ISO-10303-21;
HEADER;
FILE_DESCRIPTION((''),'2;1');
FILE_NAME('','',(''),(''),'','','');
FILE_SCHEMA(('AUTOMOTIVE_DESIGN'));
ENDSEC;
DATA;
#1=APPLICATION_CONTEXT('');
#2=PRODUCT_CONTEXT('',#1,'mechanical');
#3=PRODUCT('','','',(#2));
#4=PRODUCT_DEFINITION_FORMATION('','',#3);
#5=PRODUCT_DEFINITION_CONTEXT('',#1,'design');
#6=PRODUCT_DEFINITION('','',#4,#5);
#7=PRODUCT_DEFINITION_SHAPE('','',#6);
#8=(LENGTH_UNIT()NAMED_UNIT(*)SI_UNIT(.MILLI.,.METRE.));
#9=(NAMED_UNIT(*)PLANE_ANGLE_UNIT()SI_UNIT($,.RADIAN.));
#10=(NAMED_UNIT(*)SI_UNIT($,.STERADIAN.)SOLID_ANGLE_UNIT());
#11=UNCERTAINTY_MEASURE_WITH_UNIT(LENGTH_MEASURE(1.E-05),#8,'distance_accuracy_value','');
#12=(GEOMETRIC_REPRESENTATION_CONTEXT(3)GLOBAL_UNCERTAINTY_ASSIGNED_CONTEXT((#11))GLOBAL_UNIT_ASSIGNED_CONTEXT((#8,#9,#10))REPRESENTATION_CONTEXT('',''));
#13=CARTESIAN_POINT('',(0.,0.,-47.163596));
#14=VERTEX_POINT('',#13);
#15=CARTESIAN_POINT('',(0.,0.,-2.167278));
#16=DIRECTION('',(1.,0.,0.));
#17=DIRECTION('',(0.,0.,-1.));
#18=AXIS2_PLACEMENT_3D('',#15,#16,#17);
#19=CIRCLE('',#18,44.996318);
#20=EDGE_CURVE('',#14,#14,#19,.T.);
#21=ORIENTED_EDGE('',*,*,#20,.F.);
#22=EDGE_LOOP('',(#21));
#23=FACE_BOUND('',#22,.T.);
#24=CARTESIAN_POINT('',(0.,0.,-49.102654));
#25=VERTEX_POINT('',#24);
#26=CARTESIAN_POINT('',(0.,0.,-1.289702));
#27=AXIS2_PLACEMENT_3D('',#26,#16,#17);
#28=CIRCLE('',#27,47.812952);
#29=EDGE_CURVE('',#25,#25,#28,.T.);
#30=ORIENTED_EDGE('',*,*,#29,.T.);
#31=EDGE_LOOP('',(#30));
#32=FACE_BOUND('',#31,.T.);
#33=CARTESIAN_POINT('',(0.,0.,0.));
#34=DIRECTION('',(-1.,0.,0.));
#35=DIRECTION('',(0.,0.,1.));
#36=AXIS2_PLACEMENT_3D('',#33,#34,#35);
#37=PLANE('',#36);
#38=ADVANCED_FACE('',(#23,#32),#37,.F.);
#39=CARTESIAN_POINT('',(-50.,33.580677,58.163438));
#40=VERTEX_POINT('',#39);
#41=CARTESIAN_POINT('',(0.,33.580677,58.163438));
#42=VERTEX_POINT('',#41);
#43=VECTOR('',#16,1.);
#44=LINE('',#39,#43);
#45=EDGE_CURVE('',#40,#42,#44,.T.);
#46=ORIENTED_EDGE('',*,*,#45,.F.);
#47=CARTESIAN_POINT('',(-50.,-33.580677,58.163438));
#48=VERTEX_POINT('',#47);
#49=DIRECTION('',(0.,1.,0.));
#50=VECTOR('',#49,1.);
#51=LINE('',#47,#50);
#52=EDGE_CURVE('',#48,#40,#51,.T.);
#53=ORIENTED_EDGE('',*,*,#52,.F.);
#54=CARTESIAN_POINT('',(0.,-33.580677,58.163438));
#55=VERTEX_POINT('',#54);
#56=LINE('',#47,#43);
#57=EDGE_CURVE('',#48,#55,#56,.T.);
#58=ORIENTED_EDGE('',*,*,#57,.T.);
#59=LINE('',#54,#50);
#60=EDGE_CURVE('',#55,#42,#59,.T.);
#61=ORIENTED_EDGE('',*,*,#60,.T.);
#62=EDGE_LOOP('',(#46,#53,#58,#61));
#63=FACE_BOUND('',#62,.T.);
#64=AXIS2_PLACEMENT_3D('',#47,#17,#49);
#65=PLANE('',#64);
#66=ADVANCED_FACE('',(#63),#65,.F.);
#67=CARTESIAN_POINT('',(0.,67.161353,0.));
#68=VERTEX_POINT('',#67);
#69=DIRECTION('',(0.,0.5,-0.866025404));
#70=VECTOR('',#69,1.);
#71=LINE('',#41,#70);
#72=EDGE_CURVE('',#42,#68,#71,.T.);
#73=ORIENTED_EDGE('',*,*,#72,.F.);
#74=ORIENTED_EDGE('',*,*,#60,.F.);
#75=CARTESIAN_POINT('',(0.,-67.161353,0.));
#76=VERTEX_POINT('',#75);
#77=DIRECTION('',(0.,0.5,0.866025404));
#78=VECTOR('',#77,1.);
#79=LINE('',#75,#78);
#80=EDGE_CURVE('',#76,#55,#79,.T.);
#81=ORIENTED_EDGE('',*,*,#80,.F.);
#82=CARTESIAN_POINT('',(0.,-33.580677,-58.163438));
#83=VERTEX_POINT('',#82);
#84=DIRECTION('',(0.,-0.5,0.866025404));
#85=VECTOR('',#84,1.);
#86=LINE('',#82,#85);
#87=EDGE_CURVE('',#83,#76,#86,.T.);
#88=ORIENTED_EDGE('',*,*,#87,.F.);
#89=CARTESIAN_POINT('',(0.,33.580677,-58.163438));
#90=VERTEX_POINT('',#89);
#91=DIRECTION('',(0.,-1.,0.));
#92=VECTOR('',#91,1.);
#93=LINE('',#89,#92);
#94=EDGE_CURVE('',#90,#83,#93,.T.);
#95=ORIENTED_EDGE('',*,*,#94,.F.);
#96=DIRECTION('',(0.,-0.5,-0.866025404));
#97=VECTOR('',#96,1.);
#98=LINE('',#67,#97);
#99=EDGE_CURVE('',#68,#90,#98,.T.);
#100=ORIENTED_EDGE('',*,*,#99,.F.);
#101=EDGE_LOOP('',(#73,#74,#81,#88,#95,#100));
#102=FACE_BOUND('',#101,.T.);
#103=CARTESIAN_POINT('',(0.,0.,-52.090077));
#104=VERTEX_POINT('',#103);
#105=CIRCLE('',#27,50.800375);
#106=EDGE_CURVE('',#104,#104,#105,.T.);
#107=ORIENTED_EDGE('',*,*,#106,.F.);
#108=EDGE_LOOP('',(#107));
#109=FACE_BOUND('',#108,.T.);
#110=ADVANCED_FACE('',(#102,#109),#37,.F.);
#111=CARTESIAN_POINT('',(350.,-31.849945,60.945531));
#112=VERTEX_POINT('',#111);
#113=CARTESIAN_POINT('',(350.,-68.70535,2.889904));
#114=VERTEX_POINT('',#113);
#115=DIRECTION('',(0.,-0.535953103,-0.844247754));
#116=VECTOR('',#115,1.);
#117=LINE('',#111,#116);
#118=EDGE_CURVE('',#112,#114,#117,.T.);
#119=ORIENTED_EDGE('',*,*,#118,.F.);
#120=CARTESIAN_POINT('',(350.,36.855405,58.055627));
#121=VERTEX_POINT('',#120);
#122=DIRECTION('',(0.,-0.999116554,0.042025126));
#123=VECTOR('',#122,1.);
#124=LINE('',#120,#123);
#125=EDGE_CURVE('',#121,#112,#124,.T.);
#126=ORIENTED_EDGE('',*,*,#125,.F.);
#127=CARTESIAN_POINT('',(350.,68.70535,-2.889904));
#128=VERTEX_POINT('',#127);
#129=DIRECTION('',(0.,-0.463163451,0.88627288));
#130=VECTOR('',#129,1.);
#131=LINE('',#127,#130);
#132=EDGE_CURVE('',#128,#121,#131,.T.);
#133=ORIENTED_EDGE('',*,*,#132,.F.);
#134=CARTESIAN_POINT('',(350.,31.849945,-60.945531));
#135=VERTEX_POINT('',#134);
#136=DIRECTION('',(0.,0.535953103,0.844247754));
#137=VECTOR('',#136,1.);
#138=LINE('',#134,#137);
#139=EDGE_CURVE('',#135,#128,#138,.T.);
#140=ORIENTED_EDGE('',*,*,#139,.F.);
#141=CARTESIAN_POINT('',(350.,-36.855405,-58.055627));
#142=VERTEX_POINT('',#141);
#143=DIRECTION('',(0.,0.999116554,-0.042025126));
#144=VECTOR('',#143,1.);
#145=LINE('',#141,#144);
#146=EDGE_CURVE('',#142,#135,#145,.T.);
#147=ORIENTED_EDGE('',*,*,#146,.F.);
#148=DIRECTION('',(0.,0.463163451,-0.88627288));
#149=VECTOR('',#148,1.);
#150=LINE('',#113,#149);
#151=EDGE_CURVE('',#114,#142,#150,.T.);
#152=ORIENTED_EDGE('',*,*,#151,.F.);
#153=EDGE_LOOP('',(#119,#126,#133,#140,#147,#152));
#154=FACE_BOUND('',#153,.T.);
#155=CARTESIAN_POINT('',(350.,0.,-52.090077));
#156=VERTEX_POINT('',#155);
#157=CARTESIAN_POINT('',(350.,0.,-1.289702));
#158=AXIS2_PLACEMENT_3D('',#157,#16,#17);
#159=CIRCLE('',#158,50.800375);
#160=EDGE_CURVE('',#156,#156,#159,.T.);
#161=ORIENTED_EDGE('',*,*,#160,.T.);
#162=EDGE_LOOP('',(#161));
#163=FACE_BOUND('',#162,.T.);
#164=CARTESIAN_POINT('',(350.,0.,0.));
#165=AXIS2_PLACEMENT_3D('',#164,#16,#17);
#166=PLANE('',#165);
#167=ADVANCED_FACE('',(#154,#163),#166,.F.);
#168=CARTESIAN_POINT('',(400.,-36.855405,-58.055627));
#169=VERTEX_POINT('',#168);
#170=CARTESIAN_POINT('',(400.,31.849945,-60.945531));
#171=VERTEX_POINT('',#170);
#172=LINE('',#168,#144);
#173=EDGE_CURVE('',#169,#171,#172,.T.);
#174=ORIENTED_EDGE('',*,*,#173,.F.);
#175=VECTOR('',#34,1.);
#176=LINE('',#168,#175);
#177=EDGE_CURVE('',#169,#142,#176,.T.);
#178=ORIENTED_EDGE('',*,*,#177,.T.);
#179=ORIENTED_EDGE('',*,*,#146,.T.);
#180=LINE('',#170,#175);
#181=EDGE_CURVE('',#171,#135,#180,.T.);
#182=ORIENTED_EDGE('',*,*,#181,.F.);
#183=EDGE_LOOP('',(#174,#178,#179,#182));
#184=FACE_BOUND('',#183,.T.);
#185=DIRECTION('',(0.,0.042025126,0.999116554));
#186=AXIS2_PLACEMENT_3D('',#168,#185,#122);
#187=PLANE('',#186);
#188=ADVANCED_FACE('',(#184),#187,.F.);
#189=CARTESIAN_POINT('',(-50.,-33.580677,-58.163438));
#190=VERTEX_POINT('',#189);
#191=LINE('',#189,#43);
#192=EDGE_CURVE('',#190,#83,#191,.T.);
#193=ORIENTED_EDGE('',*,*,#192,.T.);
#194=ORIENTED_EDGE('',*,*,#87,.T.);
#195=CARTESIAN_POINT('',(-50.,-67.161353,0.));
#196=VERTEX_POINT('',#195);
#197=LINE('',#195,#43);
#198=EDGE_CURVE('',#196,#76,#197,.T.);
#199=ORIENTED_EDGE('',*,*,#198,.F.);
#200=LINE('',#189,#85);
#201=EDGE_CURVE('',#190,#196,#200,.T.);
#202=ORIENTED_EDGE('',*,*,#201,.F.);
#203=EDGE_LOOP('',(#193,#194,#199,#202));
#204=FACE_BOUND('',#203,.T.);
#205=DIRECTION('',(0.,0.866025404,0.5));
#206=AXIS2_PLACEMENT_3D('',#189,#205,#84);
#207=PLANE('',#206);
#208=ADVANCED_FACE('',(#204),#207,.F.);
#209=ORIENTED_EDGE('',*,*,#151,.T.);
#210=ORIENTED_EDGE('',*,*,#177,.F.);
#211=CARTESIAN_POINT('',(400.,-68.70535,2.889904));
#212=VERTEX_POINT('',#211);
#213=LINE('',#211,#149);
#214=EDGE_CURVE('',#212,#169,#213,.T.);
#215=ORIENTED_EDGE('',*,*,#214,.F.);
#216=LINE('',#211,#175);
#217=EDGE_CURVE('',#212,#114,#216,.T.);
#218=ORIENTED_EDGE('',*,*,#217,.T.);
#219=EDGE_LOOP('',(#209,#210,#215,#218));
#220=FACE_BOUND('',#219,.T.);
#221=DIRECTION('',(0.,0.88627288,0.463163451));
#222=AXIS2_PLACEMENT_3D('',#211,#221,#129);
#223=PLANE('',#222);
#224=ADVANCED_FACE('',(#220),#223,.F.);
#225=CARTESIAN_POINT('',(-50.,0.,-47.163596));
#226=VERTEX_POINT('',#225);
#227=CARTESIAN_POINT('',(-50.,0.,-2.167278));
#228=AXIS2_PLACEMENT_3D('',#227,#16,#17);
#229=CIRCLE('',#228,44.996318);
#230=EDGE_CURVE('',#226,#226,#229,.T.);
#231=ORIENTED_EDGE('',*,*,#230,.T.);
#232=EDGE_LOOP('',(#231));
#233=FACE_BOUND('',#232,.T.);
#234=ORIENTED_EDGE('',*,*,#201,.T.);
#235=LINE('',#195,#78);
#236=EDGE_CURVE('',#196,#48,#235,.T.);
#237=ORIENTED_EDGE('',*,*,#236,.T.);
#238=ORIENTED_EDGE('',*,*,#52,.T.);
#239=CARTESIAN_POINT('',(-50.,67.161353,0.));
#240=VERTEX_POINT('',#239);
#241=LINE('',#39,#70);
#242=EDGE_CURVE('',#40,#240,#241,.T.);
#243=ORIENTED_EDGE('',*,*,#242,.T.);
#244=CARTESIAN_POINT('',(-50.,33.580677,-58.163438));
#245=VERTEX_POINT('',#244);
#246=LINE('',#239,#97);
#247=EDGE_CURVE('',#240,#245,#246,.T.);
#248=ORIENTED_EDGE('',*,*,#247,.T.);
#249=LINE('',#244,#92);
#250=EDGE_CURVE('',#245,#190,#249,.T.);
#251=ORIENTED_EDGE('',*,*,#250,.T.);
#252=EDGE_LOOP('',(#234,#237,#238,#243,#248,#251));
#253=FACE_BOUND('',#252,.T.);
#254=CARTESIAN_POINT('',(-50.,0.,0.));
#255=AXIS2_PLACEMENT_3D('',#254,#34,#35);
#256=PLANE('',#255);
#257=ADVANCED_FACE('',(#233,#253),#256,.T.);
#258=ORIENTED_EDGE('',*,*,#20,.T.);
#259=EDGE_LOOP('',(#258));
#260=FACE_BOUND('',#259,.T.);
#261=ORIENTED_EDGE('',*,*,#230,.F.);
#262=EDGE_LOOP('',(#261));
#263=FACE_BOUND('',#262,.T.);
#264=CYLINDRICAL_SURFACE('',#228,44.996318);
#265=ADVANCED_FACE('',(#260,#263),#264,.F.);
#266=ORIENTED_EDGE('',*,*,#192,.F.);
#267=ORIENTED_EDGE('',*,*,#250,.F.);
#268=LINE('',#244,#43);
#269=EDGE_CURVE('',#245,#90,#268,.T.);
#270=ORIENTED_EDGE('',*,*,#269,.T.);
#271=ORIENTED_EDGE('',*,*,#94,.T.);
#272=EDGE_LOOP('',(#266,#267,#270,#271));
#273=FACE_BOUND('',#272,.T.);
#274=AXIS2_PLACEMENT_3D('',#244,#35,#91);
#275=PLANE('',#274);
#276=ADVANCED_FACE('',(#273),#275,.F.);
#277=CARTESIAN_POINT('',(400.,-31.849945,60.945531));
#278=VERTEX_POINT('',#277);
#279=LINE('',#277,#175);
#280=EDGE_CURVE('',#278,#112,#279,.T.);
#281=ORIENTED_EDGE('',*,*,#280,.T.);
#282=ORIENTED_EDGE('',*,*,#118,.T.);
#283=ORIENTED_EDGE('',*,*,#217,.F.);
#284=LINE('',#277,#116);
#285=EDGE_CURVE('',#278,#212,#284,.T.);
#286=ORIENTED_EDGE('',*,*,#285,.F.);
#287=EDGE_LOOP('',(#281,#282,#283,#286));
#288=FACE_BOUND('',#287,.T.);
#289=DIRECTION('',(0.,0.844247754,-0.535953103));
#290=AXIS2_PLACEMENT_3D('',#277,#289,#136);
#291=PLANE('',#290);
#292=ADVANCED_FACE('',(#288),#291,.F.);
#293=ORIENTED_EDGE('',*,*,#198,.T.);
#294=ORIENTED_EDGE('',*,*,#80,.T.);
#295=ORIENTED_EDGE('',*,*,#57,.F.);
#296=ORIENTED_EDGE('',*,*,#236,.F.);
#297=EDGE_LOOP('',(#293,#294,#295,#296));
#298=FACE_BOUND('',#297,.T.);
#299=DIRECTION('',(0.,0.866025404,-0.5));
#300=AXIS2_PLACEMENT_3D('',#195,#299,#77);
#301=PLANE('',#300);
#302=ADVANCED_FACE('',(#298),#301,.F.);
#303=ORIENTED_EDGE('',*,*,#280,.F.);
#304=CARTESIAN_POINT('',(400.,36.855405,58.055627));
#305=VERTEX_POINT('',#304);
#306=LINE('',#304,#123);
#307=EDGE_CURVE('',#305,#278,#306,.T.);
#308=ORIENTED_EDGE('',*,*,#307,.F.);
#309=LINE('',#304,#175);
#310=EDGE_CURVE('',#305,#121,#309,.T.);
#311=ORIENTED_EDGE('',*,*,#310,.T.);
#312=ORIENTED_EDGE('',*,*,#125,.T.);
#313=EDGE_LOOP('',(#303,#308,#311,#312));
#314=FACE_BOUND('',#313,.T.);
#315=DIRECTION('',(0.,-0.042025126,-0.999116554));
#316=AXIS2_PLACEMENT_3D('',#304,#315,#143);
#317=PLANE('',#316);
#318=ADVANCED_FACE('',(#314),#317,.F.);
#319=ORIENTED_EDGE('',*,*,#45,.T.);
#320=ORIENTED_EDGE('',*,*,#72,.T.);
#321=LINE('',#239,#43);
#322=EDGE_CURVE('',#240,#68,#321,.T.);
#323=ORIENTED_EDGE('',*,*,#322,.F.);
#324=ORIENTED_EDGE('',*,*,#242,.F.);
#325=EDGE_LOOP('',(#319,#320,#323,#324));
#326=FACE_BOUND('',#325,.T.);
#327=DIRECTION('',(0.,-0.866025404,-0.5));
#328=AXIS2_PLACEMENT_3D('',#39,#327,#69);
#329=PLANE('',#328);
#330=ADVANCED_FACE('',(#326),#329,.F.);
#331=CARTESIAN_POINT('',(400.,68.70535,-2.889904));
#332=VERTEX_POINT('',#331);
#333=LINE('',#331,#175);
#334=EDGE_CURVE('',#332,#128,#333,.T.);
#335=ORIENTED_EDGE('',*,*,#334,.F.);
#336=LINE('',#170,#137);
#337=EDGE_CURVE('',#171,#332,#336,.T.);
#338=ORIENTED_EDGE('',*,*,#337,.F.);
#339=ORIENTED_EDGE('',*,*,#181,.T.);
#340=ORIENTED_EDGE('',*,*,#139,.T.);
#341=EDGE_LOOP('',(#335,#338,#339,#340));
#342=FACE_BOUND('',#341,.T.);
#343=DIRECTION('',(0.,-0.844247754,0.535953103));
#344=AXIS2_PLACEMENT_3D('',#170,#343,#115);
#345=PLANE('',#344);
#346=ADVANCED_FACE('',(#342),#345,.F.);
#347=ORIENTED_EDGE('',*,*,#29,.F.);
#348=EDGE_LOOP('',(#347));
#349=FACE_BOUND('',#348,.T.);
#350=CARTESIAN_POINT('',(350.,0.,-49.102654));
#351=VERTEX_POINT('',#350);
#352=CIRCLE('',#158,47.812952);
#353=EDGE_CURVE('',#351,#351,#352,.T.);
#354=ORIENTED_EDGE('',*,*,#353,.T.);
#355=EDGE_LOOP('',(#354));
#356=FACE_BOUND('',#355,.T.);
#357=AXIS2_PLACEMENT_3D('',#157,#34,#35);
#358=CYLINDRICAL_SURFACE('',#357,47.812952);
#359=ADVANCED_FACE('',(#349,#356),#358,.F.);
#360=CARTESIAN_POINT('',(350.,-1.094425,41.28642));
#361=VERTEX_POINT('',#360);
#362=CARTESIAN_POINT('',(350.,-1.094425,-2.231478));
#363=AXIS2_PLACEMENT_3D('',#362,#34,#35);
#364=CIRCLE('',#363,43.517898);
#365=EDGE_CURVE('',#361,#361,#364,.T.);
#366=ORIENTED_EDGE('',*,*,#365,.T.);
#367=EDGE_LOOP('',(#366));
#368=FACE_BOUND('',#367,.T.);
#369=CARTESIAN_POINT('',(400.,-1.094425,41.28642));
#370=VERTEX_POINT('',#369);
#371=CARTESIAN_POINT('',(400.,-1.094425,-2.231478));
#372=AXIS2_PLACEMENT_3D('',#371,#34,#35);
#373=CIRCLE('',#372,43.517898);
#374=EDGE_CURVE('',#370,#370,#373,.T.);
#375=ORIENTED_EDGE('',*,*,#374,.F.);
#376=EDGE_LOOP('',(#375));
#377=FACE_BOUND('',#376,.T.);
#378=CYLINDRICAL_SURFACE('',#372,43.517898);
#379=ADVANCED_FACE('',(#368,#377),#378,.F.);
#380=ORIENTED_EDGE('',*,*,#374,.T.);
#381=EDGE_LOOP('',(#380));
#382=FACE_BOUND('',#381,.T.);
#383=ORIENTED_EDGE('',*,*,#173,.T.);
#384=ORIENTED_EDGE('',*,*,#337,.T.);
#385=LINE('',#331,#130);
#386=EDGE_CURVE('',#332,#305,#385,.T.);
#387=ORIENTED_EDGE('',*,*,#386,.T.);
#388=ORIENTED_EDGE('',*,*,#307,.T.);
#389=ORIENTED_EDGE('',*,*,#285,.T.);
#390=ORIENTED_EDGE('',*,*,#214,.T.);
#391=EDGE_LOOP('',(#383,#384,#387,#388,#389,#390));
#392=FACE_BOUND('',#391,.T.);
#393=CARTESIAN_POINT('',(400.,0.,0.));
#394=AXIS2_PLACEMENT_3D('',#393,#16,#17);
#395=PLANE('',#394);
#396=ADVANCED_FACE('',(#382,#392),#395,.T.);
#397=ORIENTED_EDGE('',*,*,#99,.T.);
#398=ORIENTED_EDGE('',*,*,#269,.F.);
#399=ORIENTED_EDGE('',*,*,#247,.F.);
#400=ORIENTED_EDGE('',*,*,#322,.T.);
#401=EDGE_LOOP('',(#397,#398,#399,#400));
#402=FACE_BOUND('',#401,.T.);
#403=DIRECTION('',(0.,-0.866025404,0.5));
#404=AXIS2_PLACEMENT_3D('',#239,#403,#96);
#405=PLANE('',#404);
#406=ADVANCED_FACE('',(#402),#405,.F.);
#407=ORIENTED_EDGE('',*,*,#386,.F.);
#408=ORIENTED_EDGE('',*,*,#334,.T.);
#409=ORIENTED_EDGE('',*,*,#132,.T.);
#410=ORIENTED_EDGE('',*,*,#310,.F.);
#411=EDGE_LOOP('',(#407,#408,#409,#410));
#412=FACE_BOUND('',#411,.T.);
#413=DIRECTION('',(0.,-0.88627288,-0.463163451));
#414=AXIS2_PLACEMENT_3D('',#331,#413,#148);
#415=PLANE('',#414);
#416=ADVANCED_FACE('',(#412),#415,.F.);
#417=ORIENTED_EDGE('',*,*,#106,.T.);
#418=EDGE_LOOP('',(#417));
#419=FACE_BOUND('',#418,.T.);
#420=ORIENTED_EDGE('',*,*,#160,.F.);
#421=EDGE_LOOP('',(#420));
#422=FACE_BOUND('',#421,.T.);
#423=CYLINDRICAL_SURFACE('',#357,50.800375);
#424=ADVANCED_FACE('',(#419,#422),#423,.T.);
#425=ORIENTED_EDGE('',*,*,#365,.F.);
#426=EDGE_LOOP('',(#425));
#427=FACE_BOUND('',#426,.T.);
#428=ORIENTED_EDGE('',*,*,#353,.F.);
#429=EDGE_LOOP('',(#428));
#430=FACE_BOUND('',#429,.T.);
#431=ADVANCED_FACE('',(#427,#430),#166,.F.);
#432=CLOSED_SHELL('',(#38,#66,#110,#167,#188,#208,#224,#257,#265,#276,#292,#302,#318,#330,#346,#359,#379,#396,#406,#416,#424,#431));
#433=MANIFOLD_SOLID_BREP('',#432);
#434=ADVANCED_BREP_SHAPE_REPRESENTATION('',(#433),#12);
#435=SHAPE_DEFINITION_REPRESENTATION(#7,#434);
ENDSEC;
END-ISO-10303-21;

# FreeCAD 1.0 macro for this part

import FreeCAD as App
import Part
import Sketcher
from FreeCAD import Vector
Q = App.Units.Quantity


def add_polygon(sketch, points):
    """Adds a closed chain of lines whose ends are joined by coincident constraints."""
    first, n = sketch.GeometryCount, len(points)
    for a, b in zip(points, points[1:] + points[:1]):
        sketch.addGeometry(Part.LineSegment(App.Vector(*a, 0), App.Vector(*b, 0)), False)
    for i in range(n):
        sketch.addConstraint(Sketcher.Constraint("Coincident", first + i, 2, first + (i + 1) % n, 1))

doc = App.newDocument("Part")
body = doc.addObject("PartDesign::Body", "Body")

sketch1 = body.newObject("Sketcher::SketchObject", "Sketch")
sketch1.AttachmentSupport = (doc.getObject("YZ_Plane"), [""])
sketch1.MapMode = "FlatFace"
sketch1.addGeometry([
    Part.Circle(Vector(0, -1, 0), Vector(0, 0, 1), 51),
    Part.Circle(Vector(0, -1, 0), Vector(0, 0, 1), 48),
], False)
sketch1.addConstraint([
    Sketcher.Constraint("Coincident", 1, 3, 0, 3),
    Sketcher.Constraint("PointOnObject", 0, 3, -2),
    Sketcher.Constraint("Diameter", 0, 101.60075),
    Sketcher.Constraint("Diameter", 1, 95.625903),
    Sketcher.Constraint("DistanceY", 0, 3, -1, 1, 1.289702),
])
pad1 = body.newObject("PartDesign::Pad", "Pad")
pad1.Profile = sketch1
pad1.Length = 350

sketch2 = body.newObject("Sketcher::SketchObject", "Sketch001")
sketch2.AttachmentSupport = (doc.getObject("YZ_Plane"), [""])
sketch2.MapMode = "FlatFace"
sketch2.AttachmentOffset = App.Placement(Vector(0, 0, 350), App.Rotation())
add_polygon(sketch2, [(-37, -58), (32, -61), (69, -3), (37, 58), (-32, 61), (-69, 3)])
add_polygon(sketch2, [(11, -30), (-19, -29), (-33, -3), (-17, 23), (13, 22), (27, -4)])
sketch2.addConstraint([
    Sketcher.Constraint("Symmetric", 0, 2, 3, 2, -1, 1),
    Sketcher.Constraint("Symmetric", 1, 2, 4, 2, -1, 1),
    Sketcher.Constraint("Symmetric", 2, 2, 5, 2, -1, 1),
    Sketcher.Constraint("Parallel", 6, 9),
    Sketcher.Constraint("Parallel", 7, 10),
    Sketcher.Constraint("Parallel", 8, 11),
    Sketcher.Constraint("Equal", 0, 1),
    Sketcher.Constraint("Equal", 1, 2),
    Sketcher.Constraint("Equal", 6, 7),
    Sketcher.Constraint("Equal", 7, 8),
    Sketcher.Constraint("Equal", 8, 9),
    Sketcher.Constraint("Distance", 0, 68.766101),
    Sketcher.Constraint("DistanceX", 4, 2, 1, 2, 137.410701),
    Sketcher.Constraint("DistanceX", 4, 2, 6, 2, 49.714902),
    Sketcher.Constraint("DistanceY", 0, 2, 10, 2, 56.482399),
    Sketcher.Constraint("Distance", 6, 30.387638),
    Sketcher.Constraint("DistanceY", 0, 2, -1, 1, 60.945531),
    Sketcher.Constraint("DistanceX", 8, 2, -1, 1, 17.42459),
    Sketcher.Constraint("DistanceY", -1, 1, 8, 2, 23.197759),
    Sketcher.Constraint("DistanceY", -1, 1, 9, 2, 22.29371),
    Sketcher.Constraint("DistanceY", 1, 2, 2, 2, 60.945531),
])
pad2 = body.newObject("PartDesign::Pad", "Pad001")
pad2.Profile = sketch2
pad2.Length = 50

sketch3 = body.newObject("Sketcher::SketchObject", "Sketch002")
sketch3.AttachmentSupport = (doc.getObject("YZ_Plane"), [""])
sketch3.MapMode = "FlatFace"
add_polygon(sketch3, [(-67, 0), (-34, 58), (34, 58), (67, 0), (34, -58), (-34, -58)])
sketch3.addConstraint([
    Sketcher.Constraint("Horizontal", 1),
    Sketcher.Constraint("Horizontal", 4),
    Sketcher.Constraint("Symmetric", 0, 2, 3, 2, -1, 1),
    Sketcher.Constraint("Symmetric", 2, 2, 5, 2, -1, 1),
    Sketcher.Constraint("PointOnObject", 2, 2, -1),
    Sketcher.Constraint("Parallel", 2, 5),
    Sketcher.Constraint("Vertical", 1, 2, 3, 2),
    Sketcher.Constraint("Angle", 0, Q("60 deg")),
    Sketcher.Constraint("DistanceX", 1, 1, 1, 2, 67.161353),
    Sketcher.Constraint("DistanceX", 0, 2, 2, 2, 100.74203),
])
pad3 = body.newObject("PartDesign::Pad", "Pad002")
pad3.Profile = sketch3
pad3.Length = 50
pad3.Reversed = True

sketch4 = body.newObject("Sketcher::SketchObject", "Sketch003")
sketch4.AttachmentSupport = (doc.getObject("YZ_Plane"), [""])
sketch4.MapMode = "FlatFace"
sketch4.addGeometry(Part.Circle(Vector(0, -2, 0), Vector(0, 0, 1), 45), False)
sketch4.addConstraint([
    Sketcher.Constraint("PointOnObject", 0, 3, -2),
    Sketcher.Constraint("Diameter", 0, 89.992636),
    Sketcher.Constraint("DistanceY", 0, 3, -1, 1, 2.167278),
])
pocket1 = body.newObject("PartDesign::Pocket", "Pocket")
pocket1.Profile = sketch4
pocket1.Length = 50

sketch5 = body.newObject("Sketcher::SketchObject", "Sketch004")
sketch5.AttachmentSupport = (doc.getObject("YZ_Plane"), [""])
sketch5.MapMode = "FlatFace"
sketch5.AttachmentOffset = App.Placement(Vector(0, 0, 350), App.Rotation())
sketch5.addGeometry(Part.Circle(Vector(-1, -2, 0), Vector(0, 0, 1), 44), False)
sketch5.addConstraint([
    Sketcher.Constraint("Diameter", 0, 87.035797),
    Sketcher.Constraint("DistanceY", 0, 3, -1, 1, 2.231478),
    Sketcher.Constraint("DistanceX", 0, 3, -1, 1, 1.094425),
])
pocket2 = body.newObject("PartDesign::Pocket", "Pocket001")
pocket2.Profile = sketch5
pocket2.Length = 50
pocket2.Reversed = True

doc.recompute()
